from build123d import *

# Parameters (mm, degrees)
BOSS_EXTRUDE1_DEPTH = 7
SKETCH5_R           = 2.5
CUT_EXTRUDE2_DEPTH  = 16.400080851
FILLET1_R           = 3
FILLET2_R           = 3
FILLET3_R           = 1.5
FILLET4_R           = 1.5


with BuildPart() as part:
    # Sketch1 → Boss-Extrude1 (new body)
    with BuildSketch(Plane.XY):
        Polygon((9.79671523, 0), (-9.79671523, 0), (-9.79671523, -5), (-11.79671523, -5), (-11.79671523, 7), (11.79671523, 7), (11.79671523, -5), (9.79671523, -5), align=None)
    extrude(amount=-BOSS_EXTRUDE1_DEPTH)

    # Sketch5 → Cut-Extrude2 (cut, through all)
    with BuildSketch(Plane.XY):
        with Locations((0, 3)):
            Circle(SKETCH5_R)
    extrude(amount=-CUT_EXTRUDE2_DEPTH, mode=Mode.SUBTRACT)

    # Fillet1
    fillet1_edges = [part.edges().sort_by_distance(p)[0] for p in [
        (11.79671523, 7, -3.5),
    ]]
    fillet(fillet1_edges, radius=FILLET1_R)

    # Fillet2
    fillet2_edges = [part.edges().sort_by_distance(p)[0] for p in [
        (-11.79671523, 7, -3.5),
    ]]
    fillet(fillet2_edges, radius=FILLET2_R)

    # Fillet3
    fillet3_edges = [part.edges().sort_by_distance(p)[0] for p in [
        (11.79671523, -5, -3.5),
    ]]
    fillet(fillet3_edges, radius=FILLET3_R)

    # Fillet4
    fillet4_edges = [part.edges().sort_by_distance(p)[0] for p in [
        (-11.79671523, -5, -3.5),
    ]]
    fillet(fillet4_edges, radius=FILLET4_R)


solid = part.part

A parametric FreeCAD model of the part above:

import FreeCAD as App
import Part
import Sketcher
from FreeCAD import Vector


def edges_at(feature, points):
    """Names of the edges that pass closest to the given points."""
    edges = feature.Shape.Edges
    near = lambda p: min(range(len(edges)), key=lambda i: edges[i].distToShape(Part.Vertex(*p))[0])
    return sorted({f"Edge{near(p) + 1}" for p in points})


def add_polygon(sketch, points):
    """Adds a closed chain of lines whose ends are joined by coincident constraints."""
    first, n = sketch.GeometryCount, len(points)
    for a, b in zip(points, points[1:] + points[:1]):
        sketch.addGeometry(Part.LineSegment(App.Vector(*a, 0), App.Vector(*b, 0)), False)
    for i in range(n):
        sketch.addConstraint(Sketcher.Constraint("Coincident", first + i, 2, first + (i + 1) % n, 1))

doc = App.newDocument("Part")
body = doc.addObject("PartDesign::Body", "Body")

sketch1 = doc.addObject("Sketcher::SketchObject", "Sketch")
body.addObject(sketch1)
sketch1.AttachmentSupport = (doc.XY_Plane, [""])
sketch1.MapMode = "FlatFace"
add_polygon(sketch1, [(-9.8, 0), (9.8, 0), (9.8, -5), (11.8, -5), (11.8, 7), (-11.8, 7), (-11.8, -5), (-9.8, -5)])
sketch1.addConstraint([
    Sketcher.Constraint("Horizontal", 0),
    Sketcher.Constraint("Vertical", 1),
    Sketcher.Constraint("Horizontal", 2),
    Sketcher.Constraint("Vertical", 3),
    Sketcher.Constraint("Horizontal", 4),
    Sketcher.Constraint("Vertical", 5),
    Sketcher.Constraint("Horizontal", 6),
    Sketcher.Constraint("Vertical", 7),
    Sketcher.Constraint("Symmetric", 0, 2, 7, 2, -1, 1),
    Sketcher.Constraint("Symmetric", 2, 2, 5, 2, -2),
    Sketcher.Constraint("DistanceX", 2, 1, 2, 2, 2.0),
    Sketcher.Constraint("DistanceY", 1, 2, 1, 1, 5.0),
    Sketcher.Constraint("DistanceY", 3, 1, 3, 2, 12.0),
    Sketcher.Constraint("DistanceX", 0, 1, 0, 2, 19.59343),
])
pad1 = doc.addObject("PartDesign::Pad", "Pad")
body.addObject(pad1)
pad1.Profile = sketch1
pad1.Length = 7
pad1.Reversed = True

sketch2 = doc.addObject("Sketcher::SketchObject", "Sketch001")
body.addObject(sketch2)
sketch2.AttachmentSupport = (doc.XY_Plane, [""])
sketch2.MapMode = "FlatFace"
sketch2.addGeometry(Part.Circle(Vector(0, 3, 0), Vector(0, 0, 1), 2.5), False)
sketch2.addConstraint([
    Sketcher.Constraint("PointOnObject", 0, 3, -2),
    Sketcher.Constraint("Diameter", 0, 5.0),
    Sketcher.Constraint("DistanceY", -1, 1, 0, 3, 3.0),
])
pocket1 = doc.addObject("PartDesign::Pocket", "Pocket")
body.addObject(pocket1)
pocket1.Profile = sketch2
pocket1.Type = "ThroughAll"
doc.recompute()

fillet = doc.addObject("PartDesign::Fillet", "Fillet")
body.addObject(fillet)
fillet.Base = (pocket1, edges_at(pocket1, [(11.797, 7, -3.5)]))
fillet.Radius = 3
doc.recompute()

fillet2 = doc.addObject("PartDesign::Fillet", "Fillet001")
body.addObject(fillet2)
fillet2.Base = (fillet, edges_at(fillet, [(-11.797, 7, -3.5)]))
fillet2.Radius = 3
doc.recompute()

fillet3 = doc.addObject("PartDesign::Fillet", "Fillet002")
body.addObject(fillet3)
fillet3.Base = (fillet2, edges_at(fillet2, [(11.797, -5, -3.5)]))
fillet3.Radius = 1.5
doc.recompute()

fillet4 = doc.addObject("PartDesign::Fillet", "Fillet003")
body.addObject(fillet4)
fillet4.Base = (fillet3, edges_at(fillet3, [(-11.797, -5, -3.5)]))
fillet4.Radius = 1.5

doc.recompute()
